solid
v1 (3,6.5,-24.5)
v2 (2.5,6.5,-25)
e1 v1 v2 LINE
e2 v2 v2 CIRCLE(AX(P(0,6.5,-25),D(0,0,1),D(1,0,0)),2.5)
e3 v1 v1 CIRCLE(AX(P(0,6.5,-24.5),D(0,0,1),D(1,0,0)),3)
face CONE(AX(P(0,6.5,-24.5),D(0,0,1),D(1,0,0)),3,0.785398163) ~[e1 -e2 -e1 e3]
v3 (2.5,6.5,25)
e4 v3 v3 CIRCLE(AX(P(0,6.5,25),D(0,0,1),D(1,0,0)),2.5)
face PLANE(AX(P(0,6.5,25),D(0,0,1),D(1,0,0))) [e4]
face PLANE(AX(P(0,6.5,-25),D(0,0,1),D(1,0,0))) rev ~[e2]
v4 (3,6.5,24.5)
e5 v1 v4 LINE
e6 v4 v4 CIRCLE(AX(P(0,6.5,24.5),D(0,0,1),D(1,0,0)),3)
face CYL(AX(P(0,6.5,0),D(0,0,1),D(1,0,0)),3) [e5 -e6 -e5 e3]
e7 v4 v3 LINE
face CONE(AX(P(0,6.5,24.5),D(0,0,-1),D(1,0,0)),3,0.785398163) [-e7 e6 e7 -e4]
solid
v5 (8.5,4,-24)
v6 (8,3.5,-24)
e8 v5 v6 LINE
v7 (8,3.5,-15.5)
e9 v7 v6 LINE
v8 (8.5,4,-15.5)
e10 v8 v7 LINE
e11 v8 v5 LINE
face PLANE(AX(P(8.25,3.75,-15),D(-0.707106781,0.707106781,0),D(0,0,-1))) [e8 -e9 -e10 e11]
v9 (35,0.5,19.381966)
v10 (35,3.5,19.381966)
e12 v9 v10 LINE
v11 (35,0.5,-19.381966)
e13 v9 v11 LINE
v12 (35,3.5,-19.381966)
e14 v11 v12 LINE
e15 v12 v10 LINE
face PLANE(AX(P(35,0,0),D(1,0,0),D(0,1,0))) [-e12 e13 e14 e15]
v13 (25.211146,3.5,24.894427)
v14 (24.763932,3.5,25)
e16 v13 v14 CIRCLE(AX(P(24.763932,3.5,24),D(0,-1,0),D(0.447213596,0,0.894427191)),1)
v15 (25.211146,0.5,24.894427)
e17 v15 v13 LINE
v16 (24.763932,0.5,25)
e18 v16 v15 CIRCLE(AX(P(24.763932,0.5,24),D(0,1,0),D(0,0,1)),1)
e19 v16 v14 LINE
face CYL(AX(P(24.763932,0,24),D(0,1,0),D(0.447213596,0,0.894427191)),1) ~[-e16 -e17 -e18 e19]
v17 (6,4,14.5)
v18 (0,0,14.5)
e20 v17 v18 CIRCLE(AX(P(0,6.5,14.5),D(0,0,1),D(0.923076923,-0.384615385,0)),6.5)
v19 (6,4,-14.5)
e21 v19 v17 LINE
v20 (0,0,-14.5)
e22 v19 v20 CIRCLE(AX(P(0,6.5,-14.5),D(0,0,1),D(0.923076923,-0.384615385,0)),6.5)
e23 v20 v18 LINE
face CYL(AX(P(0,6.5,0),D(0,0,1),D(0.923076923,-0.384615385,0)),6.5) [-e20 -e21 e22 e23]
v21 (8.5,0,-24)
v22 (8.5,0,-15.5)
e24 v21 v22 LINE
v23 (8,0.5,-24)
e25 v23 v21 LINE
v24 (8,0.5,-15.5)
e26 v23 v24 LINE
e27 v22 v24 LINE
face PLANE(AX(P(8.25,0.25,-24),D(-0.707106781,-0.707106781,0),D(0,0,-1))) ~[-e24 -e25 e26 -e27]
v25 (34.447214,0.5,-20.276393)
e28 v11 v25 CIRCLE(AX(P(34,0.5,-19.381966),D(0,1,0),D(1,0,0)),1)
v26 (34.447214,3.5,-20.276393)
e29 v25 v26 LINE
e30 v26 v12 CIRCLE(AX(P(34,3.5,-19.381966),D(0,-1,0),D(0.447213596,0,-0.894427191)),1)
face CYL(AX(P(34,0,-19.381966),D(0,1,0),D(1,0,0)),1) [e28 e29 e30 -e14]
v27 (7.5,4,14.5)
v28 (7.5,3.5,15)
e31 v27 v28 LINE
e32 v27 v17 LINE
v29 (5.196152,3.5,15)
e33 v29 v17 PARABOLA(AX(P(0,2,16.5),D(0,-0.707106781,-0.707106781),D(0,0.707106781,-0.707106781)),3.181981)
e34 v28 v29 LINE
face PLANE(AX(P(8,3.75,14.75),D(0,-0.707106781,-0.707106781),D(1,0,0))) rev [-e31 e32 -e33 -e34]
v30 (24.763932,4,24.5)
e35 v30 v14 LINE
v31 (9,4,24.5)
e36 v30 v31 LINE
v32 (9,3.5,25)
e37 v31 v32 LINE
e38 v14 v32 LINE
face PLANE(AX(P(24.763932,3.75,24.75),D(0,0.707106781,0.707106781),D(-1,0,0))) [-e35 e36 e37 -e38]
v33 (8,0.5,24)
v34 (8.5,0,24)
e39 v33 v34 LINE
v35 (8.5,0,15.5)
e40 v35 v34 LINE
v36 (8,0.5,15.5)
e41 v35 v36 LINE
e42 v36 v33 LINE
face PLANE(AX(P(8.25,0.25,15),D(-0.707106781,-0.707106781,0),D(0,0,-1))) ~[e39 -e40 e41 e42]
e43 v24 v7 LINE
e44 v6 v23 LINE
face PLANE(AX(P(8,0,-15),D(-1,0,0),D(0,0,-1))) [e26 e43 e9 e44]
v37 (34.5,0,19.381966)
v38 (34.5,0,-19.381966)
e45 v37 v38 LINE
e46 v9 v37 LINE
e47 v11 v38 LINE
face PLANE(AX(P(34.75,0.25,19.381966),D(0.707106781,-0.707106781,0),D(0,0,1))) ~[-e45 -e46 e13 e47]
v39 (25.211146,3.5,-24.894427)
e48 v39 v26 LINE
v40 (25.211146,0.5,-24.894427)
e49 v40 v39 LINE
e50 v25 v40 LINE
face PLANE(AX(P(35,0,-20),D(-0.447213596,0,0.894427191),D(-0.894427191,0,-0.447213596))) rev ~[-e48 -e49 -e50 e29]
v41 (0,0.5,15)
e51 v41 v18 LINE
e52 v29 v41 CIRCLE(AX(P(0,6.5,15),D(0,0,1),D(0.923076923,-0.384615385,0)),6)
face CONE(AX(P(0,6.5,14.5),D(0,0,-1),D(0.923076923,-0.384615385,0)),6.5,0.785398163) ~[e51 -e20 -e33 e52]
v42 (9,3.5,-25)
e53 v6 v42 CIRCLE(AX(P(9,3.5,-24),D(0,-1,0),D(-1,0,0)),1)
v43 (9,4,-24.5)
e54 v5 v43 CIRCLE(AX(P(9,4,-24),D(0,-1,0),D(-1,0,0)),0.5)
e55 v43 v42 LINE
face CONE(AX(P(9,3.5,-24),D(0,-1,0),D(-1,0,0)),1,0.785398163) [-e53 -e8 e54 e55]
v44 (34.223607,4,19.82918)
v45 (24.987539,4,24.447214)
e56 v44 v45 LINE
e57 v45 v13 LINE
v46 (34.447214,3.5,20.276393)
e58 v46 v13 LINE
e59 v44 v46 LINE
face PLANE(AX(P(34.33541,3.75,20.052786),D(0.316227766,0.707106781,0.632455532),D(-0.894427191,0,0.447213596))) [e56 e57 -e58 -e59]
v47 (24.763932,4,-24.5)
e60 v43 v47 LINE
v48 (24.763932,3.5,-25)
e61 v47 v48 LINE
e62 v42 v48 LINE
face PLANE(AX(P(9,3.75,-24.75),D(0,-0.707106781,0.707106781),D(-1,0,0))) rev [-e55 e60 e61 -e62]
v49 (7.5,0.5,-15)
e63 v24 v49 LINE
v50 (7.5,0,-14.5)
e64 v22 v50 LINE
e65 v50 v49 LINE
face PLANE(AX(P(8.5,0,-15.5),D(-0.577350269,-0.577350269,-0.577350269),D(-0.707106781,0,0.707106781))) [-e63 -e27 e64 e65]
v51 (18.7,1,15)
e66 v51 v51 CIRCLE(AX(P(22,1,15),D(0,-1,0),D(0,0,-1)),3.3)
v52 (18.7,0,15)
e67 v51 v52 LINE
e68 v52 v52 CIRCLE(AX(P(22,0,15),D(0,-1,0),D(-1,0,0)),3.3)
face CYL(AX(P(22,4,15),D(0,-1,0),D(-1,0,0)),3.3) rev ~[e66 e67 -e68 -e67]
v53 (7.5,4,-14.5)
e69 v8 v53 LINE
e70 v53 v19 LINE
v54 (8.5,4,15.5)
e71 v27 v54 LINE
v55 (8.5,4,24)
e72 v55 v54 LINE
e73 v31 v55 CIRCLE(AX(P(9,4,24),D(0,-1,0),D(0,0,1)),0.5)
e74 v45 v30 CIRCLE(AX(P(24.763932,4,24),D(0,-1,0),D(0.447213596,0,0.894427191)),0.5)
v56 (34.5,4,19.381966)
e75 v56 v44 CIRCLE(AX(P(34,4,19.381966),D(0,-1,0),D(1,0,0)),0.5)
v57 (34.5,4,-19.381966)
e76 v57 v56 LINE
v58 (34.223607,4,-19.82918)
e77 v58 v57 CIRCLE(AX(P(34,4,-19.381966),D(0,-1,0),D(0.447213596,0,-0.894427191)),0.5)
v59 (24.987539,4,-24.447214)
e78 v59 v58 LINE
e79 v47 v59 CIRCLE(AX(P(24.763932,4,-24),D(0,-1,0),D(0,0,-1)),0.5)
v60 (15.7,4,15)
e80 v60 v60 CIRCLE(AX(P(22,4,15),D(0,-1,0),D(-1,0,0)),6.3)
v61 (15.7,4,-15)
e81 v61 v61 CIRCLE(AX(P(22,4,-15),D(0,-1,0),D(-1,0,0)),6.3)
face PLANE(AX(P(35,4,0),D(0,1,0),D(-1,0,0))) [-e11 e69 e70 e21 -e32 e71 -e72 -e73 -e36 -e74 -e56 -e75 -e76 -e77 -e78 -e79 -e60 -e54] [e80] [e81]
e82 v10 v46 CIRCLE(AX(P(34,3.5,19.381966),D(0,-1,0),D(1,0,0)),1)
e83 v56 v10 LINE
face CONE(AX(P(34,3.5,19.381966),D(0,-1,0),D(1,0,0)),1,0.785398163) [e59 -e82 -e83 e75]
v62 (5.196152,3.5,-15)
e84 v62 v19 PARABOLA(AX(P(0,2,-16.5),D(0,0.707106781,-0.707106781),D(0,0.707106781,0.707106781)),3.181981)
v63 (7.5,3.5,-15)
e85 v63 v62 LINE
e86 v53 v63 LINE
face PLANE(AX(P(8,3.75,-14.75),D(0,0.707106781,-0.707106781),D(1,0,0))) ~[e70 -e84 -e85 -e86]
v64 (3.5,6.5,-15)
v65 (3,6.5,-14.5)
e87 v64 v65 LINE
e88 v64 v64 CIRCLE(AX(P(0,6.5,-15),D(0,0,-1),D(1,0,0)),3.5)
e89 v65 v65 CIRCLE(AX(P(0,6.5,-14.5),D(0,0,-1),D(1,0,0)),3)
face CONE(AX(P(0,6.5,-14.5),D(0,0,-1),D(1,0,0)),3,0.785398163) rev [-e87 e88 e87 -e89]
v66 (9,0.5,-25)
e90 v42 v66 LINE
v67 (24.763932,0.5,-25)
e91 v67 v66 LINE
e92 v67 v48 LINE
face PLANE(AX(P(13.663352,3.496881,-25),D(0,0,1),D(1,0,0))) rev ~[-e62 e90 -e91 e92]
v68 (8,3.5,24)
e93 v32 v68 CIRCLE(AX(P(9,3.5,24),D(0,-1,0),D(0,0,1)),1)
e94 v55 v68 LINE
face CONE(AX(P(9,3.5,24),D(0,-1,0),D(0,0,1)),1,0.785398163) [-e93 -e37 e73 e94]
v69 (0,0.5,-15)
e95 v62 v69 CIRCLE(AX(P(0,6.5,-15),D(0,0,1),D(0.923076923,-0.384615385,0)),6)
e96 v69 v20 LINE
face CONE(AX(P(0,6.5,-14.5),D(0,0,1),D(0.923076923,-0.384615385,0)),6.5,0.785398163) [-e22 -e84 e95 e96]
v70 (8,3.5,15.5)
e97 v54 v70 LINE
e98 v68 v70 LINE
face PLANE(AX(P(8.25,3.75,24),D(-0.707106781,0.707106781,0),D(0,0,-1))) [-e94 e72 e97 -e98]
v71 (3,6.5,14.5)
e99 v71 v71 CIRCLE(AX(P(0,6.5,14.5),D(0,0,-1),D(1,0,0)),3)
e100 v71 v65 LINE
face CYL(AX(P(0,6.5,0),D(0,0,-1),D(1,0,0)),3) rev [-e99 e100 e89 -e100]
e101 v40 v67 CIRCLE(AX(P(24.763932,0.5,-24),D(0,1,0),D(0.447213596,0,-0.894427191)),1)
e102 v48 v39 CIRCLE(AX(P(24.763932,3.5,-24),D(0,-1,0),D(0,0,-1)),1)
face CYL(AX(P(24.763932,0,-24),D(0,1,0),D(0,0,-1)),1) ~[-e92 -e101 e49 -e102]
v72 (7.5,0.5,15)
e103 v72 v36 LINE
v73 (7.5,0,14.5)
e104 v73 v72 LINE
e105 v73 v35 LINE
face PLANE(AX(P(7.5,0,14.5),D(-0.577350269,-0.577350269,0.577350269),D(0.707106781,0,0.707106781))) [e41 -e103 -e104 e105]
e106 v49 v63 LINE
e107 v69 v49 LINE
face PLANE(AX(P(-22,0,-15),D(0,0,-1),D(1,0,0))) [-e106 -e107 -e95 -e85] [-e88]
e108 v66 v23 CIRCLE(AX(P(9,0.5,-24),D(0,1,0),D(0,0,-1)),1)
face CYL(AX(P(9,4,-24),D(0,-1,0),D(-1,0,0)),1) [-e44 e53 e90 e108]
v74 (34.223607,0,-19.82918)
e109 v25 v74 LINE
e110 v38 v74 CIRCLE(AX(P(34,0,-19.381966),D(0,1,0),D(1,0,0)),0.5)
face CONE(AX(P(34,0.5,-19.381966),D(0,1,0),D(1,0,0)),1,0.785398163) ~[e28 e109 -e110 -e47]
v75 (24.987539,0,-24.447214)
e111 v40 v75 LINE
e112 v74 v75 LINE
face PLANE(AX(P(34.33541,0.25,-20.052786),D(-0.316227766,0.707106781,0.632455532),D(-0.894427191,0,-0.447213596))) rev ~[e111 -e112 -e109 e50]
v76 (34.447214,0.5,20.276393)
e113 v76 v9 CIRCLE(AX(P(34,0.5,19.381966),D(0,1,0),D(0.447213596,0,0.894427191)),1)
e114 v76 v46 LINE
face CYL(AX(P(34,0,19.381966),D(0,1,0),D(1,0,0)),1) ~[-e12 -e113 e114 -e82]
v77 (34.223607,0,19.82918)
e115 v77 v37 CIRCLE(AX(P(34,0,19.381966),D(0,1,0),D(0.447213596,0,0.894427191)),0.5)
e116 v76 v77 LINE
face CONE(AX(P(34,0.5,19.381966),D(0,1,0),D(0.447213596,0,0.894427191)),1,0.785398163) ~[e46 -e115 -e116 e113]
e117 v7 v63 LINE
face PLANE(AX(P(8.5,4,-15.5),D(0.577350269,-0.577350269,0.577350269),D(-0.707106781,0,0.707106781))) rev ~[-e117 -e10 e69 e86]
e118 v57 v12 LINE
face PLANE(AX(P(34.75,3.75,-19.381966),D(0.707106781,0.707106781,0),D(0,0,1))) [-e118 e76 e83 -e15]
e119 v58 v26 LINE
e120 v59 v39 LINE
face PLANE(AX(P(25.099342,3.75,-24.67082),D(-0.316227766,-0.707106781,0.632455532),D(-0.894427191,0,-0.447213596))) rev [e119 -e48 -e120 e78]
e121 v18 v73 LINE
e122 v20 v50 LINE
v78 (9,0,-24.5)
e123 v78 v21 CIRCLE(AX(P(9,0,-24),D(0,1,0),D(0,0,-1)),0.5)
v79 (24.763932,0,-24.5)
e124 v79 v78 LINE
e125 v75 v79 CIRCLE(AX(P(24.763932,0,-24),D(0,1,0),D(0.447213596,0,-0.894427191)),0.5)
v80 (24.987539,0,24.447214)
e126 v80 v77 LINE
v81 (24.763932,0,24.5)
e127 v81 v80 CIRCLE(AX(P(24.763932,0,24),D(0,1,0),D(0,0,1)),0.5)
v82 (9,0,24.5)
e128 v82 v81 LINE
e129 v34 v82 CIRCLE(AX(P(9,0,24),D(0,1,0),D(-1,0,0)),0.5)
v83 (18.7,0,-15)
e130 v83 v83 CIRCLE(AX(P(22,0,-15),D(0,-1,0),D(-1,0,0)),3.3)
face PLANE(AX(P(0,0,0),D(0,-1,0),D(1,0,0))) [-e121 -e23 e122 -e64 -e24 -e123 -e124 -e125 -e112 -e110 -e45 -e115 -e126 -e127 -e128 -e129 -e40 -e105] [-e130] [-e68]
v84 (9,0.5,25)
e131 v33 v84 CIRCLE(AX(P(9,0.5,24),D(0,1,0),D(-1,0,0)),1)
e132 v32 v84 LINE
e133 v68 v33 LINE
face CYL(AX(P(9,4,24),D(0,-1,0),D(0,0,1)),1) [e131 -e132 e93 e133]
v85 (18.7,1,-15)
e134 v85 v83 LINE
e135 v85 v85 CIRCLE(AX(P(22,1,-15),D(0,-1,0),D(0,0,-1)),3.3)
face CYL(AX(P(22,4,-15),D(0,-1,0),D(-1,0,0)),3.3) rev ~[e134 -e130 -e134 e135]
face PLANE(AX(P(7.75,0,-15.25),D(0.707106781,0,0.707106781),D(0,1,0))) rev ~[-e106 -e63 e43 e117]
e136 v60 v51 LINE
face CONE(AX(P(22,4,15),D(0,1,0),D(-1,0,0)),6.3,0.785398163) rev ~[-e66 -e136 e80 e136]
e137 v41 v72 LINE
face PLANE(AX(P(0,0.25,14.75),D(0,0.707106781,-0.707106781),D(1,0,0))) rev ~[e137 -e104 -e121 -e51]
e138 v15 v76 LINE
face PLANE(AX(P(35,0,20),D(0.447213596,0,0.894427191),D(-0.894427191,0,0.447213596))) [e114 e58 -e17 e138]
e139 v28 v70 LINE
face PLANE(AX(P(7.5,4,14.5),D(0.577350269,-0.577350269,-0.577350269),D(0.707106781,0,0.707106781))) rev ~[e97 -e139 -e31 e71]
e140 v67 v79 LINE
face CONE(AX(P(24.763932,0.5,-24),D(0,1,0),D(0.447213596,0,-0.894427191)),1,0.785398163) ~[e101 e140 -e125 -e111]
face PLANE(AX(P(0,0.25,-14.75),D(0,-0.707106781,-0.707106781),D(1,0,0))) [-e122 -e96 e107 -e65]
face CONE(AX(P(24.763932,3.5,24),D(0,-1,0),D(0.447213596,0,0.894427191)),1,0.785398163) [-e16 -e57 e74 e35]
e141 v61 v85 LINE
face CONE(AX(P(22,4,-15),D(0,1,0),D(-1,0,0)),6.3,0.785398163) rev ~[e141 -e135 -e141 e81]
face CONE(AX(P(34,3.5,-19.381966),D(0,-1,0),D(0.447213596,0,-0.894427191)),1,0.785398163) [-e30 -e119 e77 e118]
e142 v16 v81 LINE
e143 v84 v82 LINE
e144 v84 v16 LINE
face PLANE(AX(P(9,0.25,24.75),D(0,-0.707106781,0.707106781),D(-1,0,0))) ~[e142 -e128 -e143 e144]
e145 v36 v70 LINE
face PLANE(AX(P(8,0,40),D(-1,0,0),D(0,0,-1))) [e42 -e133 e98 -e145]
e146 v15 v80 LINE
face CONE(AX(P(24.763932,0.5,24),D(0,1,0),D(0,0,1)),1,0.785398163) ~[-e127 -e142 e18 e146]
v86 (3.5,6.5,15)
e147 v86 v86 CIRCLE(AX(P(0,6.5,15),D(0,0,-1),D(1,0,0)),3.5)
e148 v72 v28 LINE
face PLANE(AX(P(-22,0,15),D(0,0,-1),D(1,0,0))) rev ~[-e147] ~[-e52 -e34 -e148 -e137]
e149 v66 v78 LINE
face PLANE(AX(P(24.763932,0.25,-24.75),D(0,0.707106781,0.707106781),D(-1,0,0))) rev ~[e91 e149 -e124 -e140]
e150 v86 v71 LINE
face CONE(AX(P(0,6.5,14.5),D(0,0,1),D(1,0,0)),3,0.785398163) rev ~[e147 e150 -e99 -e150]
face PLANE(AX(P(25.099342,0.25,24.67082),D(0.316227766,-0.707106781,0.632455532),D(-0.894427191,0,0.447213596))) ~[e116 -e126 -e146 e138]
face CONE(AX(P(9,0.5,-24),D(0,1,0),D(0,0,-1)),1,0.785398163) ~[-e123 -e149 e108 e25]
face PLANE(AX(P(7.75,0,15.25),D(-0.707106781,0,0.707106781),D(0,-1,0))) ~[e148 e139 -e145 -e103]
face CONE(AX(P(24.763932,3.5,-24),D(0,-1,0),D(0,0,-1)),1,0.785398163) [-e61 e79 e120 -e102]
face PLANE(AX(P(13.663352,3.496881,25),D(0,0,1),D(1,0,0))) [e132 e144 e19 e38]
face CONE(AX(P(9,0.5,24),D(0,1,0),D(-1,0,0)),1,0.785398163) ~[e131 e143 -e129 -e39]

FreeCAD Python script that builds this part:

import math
import FreeCAD as App
import Part
import Sketcher
Q = App.Units.Quantity


def edges_at(feature, points):
    """Names of the edges that pass closest to the given points."""
    edges = feature.Shape.Edges
    near = lambda p: min(range(len(edges)), key=lambda i: edges[i].distToShape(Part.Vertex(*p))[0])
    return sorted({f"Edge{near(p) + 1}" for p in points})


def add_polygon(sketch, points):
    """Adds a closed chain of lines whose ends are joined by coincident constraints."""
    first, n = sketch.GeometryCount, len(points)
    for a, b in zip(points, points[1:] + points[:1]):
        sketch.addGeometry(Part.LineSegment(App.Vector(*a, 0), App.Vector(*b, 0)), False)
    for i in range(n):
        sketch.addConstraint(Sketcher.Constraint("Coincident", first + i, 2, first + (i + 1) % n, 1))

doc = App.newDocument("Part")
body = doc.addObject("PartDesign::Body", "Body")

# Sketch on XY plane
sketch1 = doc.addObject("Sketcher::SketchObject", "Sketch")
body.addObject(sketch1)
sketch1.AttachmentSupport = (doc.XY_Plane, [""])
sketch1.MapMode = "FlatFace"
sketch1.addGeometry(Part.LineSegment(App.Vector(35, 4, 0), App.Vector(6, 4, 0)), False)
sketch1.addGeometry(Part.ArcOfCircle(Part.Circle(App.Vector(0, 6.5, 0), App.Vector(0, 0, 1), 6.5), math.radians(-23), math.radians(270)), False)
sketch1.addGeometry(Part.LineSegment(App.Vector(0, 0, 0), App.Vector(35, 0, 0)), False)
sketch1.addGeometry(Part.LineSegment(App.Vector(35, 0, 0), App.Vector(35, 4, 0)), False)
sketch1.addGeometry(Part.Circle(App.Vector(0, 6.5, 0), App.Vector(0, 0, 1), 3), False)
sketch1.addConstraint(Sketcher.Constraint("Coincident", 0, 2, 1, 1))
sketch1.addConstraint(Sketcher.Constraint("Tangent", 1, 2, 2, 1))
sketch1.addConstraint(Sketcher.Constraint("Coincident", 2, 2, 3, 1))
sketch1.addConstraint(Sketcher.Constraint("Coincident", 3, 2, 0, 1))
sketch1.addConstraint(Sketcher.Constraint("Horizontal", 0))
sketch1.addConstraint(Sketcher.Constraint("Horizontal", 2))
sketch1.addConstraint(Sketcher.Constraint("Vertical", 3))
sketch1.addConstraint(Sketcher.Constraint("Coincident", 1, 2, -1, 1))
sketch1.addConstraint(Sketcher.Constraint("Coincident", 4, 3, 1, 3))
sketch1.addConstraint(Sketcher.Constraint("Diameter", 4, Q("6 mm")))
sketch1.addConstraint(Sketcher.Constraint("Radius", 1, Q("6.5 mm")))
sketch1.addConstraint(Sketcher.Constraint("DistanceX", 0, 2, 0, 1, Q("29 mm")))
sketch1.addConstraint(Sketcher.Constraint("DistanceX", 2, 1, 2, 2, Q("35 mm")))
pad1 = doc.addObject("PartDesign::Pad", "Pad")
body.addObject(pad1)
pad1.Profile = sketch1
pad1.Length = 50
pad1.Midplane = True

# Sketch on XZ plane
sketch2 = doc.addObject("Sketcher::SketchObject", "Sketch001")
body.addObject(sketch2)
sketch2.AttachmentSupport = (doc.XZ_Plane, [""])
sketch2.MapMode = "FlatFace"
add_polygon(sketch2, [(-22, -40), (-22, -15), (8, -15), (8, -40)])  # lines 0-3
add_polygon(sketch2, [(-22, 15), (-22, 40), (8, 40), (8, 15)])  # lines 4-7
add_polygon(sketch2, [(25, -25), (35, -20), (35, -25)])  # lines 8-10
add_polygon(sketch2, [(35, 25), (35, 20), (25, 25)])  # lines 11-13
sketch2.addConstraint(Sketcher.Constraint("Vertical", 0))
sketch2.addConstraint(Sketcher.Constraint("Horizontal", 1))
sketch2.addConstraint(Sketcher.Constraint("Vertical", 2))
sketch2.addConstraint(Sketcher.Constraint("Horizontal", 3))
sketch2.addConstraint(Sketcher.Constraint("Vertical", 4))
sketch2.addConstraint(Sketcher.Constraint("Horizontal", 5))
sketch2.addConstraint(Sketcher.Constraint("Vertical", 6))
sketch2.addConstraint(Sketcher.Constraint("Horizontal", 7))
sketch2.addConstraint(Sketcher.Constraint("Vertical", 9))
sketch2.addConstraint(Sketcher.Constraint("Horizontal", 10))
sketch2.addConstraint(Sketcher.Constraint("Vertical", 11))
sketch2.addConstraint(Sketcher.Constraint("Horizontal", 13))
sketch2.addConstraint(Sketcher.Constraint("Symmetric", 3, 2, 4, 2, -1))
sketch2.addConstraint(Sketcher.Constraint("Symmetric", 1, 2, 6, 2, -1))
sketch2.addConstraint(Sketcher.Constraint("Symmetric", 8, 2, 11, 2, -1))
sketch2.addConstraint(Sketcher.Constraint("Symmetric", 10, 2, 12, 2, -1))
sketch2.addConstraint(Sketcher.Constraint("DistanceX", 1, 1, 1, 2, Q("30 mm")))
sketch2.addConstraint(Sketcher.Constraint("DistanceX", 10, 2, 10, 1, Q("10 mm")))
sketch2.addConstraint(Sketcher.Constraint("DistanceY", 0, 1, 0, 2, Q("25 mm")))
sketch2.addConstraint(Sketcher.Constraint("DistanceY", 9, 2, 9, 1, Q("5 mm")))
sketch2.addConstraint(Sketcher.Constraint("DistanceX", 0, 2, -1, 1, Q("22 mm")))
sketch2.addConstraint(Sketcher.Constraint("DistanceY", 0, 2, -1, 1, Q("15 mm")))
sketch2.addConstraint(Sketcher.Constraint("DistanceX", -1, 1, 8, 2, Q("35 mm")))
sketch2.addConstraint(Sketcher.Constraint("DistanceY", 8, 2, -1, 1, Q("20 mm")))
pocket1 = doc.addObject("PartDesign::Pocket", "Pocket")
body.addObject(pocket1)
pocket1.Profile = sketch2
pocket1.Type = "ThroughAll"

# Sketch on XZ plane
sketch3 = doc.addObject("Sketcher::SketchObject", "Sketch002")
body.addObject(sketch3)
sketch3.AttachmentSupport = (doc.XZ_Plane, [""])
sketch3.MapMode = "FlatFace"
sketch3.AttachmentOffset = App.Placement(App.Vector(0, 0, -4), App.Rotation())
sketch3.addGeometry(Part.Circle(App.Vector(22, -15, 0), App.Vector(0, 0, 1), 3.3), False)
sketch3.addGeometry(Part.Circle(App.Vector(22, 15, 0), App.Vector(0, 0, 1), 3.3), False)
sketch3.addConstraint(Sketcher.Constraint("Equal", 0, 1))
sketch3.addConstraint(Sketcher.Constraint("Symmetric", 0, 3, 1, 3, -1))
sketch3.addConstraint(Sketcher.Constraint("Diameter", 0, Q("6.6 mm")))
sketch3.addConstraint(Sketcher.Constraint("DistanceX", -1, 1, 0, 3, Q("22 mm")))
sketch3.addConstraint(Sketcher.Constraint("DistanceY", 0, 3, -1, 1, Q("15 mm")))
doc.recompute()
hole = doc.addObject("PartDesign::Hole", "Hole")
body.addObject(hole)
hole.Profile = sketch3
hole.ThreadType = "None"
hole.Diameter = 6.6
hole.DepthType = "Dimension"
hole.Depth = 38.01716
hole.DrillPoint = "Angled"
hole.DrillPointAngle = 118
hole.HoleCutType = "Countersink"
hole.HoleCutDiameter = 12.6
hole.HoleCutCountersinkAngle = 90
hole.Reversed = True
doc.recompute()

fillet = doc.addObject("PartDesign::Fillet", "Fillet")
body.addObject(fillet)
fillet.Base = (hole, edges_at(hole, [
    (8, 2, -25),
    (25, 2, -25),
    (25, 2, 25),
    (8, 2, 25),
    (35, 2, -20),
    (35, 2, 20),
]))
fillet.Radius = 1
doc.recompute()

chamfer = doc.addObject("PartDesign::Chamfer", "Chamfer")
body.addObject(chamfer)
chamfer.Base = (fillet, edges_at(fillet, [
    (29.829, 4, -22.585),
    (29.829, 0, -22.585),
    (8, 4, 19.5),
    (16.882, 4, 25),
    (29.829, 4, 22.585),
    (35, 4, 0),
    (16.882, 4, -25),
    (8.293, 4, -24.707),
    (8.293, 4, 24.707),
    (24.994, 4, 24.973),
    (34.851, 4, 19.908),
    (34.851, 4, -19.908),
    (24.994, 4, -24.973),
    (16.882, 0, -25),
    (8, 0, 19.5),
    (35, 0, 0),
    (29.829, 0, 22.585),
    (16.882, 0, 25),
    (8.293, 0, -24.707),
    (8.293, 0, 24.707),
    (24.994, 0, 24.973),
    (34.851, 0, 19.908),
    (34.851, 0, -19.908),
    (24.994, 0, -24.973),
    (-3, 6.5, 15),
    (8, 2, 15),
    (4, 0, 15),
    (7, 4, 15),
    (-3.606, 11.908, 15),
    (-3, 6.5, -15),
    (4, 0, -15),
    (-3.606, 11.908, -15),
    (7, 4, -15),
    (8, 2, -15),
    (8, 0, -19.5),
    (8, 4, -19.5),
]))
chamfer.Size = 0.5
body2 = doc.addObject("PartDesign::Body", "Body001")

# Sketch on XY plane
sketch4 = doc.addObject("Sketcher::SketchObject", "Sketch003")
body2.addObject(sketch4)
sketch4.AttachmentSupport = (doc.getObject("XY_Plane001"), [""])
sketch4.MapMode = "FlatFace"
sketch4.addGeometry(Part.Circle(App.Vector(0, 6.5, 0), App.Vector(0, 0, 1), 3), False)
sketch4.addConstraint(Sketcher.Constraint("PointOnObject", 0, 3, -2))
sketch4.addConstraint(Sketcher.Constraint("Diameter", 0, Q("6 mm")))
sketch4.addConstraint(Sketcher.Constraint("DistanceY", -1, 1, 0, 3, Q("6.5 mm")))
pad2 = doc.addObject("PartDesign::Pad", "Pad001")
body2.addObject(pad2)
pad2.Profile = sketch4
pad2.Length = 50
pad2.Midplane = True
doc.recompute()

chamfer2 = doc.addObject("PartDesign::Chamfer", "Chamfer001")
body2.addObject(chamfer2)
chamfer2.Base = (pad2, edges_at(pad2, [(-3, 6.5, -25), (-3, 6.5, 25)]))
chamfer2.Size = 0.5

doc.recompute()
